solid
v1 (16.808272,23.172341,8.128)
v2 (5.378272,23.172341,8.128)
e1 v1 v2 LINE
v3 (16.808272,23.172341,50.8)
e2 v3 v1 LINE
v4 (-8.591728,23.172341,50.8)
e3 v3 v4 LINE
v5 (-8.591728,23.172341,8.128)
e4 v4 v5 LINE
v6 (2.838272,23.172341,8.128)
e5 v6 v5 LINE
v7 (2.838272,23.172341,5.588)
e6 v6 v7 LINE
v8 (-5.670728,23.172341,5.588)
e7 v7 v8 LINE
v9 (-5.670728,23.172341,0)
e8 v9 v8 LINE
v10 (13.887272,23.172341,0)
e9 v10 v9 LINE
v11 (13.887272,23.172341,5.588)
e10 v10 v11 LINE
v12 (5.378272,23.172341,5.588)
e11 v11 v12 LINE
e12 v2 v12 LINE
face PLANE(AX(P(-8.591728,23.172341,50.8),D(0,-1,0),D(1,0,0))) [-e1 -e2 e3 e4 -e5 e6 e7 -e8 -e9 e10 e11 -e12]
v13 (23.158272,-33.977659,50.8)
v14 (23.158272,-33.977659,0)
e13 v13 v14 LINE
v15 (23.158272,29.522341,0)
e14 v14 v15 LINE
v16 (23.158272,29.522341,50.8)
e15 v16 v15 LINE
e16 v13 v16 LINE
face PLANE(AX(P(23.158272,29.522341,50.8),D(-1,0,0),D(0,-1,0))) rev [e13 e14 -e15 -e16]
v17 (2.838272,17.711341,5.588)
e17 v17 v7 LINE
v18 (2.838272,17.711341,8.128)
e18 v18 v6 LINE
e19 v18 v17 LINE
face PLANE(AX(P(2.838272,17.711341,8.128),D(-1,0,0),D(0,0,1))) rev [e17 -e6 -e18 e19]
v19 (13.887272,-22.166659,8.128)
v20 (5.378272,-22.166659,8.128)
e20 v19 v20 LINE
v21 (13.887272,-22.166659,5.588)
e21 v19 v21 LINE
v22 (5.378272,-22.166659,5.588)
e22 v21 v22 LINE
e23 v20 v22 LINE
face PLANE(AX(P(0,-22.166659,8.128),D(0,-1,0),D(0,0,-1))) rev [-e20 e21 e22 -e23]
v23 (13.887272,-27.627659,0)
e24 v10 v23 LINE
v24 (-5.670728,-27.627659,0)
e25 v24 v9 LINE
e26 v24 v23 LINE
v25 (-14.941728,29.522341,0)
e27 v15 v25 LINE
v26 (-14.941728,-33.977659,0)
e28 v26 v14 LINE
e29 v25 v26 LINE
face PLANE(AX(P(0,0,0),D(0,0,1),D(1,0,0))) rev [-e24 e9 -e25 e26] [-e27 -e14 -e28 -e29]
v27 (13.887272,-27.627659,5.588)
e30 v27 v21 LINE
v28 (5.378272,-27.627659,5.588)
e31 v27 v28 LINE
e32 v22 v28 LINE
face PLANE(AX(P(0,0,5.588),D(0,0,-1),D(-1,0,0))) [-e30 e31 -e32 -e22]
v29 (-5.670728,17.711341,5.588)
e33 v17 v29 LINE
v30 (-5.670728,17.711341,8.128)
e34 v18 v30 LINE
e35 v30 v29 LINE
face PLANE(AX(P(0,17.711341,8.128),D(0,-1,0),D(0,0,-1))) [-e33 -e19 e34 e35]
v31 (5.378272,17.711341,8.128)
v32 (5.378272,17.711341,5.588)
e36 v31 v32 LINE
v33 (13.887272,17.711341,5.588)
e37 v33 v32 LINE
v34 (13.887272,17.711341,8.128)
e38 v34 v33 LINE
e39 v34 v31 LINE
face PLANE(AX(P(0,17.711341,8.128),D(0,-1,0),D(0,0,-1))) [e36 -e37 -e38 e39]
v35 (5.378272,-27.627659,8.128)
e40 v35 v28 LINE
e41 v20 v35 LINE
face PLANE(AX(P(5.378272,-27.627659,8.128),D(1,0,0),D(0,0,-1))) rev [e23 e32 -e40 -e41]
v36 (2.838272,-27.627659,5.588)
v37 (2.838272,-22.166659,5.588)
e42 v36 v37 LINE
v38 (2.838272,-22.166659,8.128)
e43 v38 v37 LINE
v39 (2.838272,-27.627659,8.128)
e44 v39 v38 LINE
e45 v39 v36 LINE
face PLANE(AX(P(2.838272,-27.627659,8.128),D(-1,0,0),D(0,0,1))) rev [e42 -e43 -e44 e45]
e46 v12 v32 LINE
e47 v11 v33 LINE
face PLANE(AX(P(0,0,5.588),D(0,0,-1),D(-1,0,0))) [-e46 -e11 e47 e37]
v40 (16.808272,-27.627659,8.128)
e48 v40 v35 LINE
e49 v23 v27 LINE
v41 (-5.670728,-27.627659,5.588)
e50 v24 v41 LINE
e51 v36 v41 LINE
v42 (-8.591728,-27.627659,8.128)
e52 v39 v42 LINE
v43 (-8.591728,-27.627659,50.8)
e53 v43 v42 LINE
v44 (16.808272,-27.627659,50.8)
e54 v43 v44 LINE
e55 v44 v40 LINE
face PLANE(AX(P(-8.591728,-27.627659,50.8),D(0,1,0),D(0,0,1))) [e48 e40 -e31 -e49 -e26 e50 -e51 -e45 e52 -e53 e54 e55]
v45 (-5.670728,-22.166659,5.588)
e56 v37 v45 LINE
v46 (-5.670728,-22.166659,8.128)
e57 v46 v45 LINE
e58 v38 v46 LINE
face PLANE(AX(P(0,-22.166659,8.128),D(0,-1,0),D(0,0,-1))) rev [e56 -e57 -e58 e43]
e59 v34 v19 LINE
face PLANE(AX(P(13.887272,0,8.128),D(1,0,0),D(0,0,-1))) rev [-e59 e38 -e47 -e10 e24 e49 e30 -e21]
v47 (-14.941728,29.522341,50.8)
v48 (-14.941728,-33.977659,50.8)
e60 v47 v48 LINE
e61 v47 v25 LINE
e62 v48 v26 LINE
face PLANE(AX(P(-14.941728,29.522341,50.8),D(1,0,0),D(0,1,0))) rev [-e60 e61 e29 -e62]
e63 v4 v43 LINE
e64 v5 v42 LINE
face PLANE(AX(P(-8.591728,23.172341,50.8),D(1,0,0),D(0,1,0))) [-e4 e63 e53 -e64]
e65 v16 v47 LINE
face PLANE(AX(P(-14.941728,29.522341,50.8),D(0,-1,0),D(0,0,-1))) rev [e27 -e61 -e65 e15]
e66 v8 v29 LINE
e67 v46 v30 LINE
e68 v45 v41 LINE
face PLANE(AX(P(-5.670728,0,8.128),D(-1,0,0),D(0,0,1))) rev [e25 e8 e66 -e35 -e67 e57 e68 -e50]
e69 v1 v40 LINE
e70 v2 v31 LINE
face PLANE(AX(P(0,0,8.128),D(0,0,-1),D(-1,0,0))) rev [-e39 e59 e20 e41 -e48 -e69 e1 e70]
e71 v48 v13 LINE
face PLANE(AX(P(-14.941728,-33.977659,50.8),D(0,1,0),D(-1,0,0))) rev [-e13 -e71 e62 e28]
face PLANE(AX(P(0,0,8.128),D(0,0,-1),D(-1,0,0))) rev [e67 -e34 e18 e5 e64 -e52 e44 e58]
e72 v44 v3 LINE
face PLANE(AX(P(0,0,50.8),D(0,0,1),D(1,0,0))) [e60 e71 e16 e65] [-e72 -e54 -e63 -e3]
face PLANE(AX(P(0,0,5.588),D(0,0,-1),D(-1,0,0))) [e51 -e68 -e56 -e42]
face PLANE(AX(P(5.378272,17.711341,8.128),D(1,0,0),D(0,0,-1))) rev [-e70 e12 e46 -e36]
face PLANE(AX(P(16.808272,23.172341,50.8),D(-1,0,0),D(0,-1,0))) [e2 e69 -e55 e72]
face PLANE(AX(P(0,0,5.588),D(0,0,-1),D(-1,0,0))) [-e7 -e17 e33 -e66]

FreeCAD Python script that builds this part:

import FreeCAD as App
import Part
import Sketcher
Q = App.Units.Quantity

doc = App.newDocument("Part")
body = doc.addObject("PartDesign::Body", "Body")

sketch1 = body.newObject("Sketcher::SketchObject", "Sketch")
sketch1.AttachmentSupport = (doc.getObject("XY_Plane"), [""])
sketch1.MapMode = "FlatFace"
sketch1.addGeometry([
    Part.LineSegment(App.Vector(-15, 30, 0), App.Vector(-15, -34, 0)),
    Part.LineSegment(App.Vector(-15, -34, 0), App.Vector(23, -34, 0)),
    Part.LineSegment(App.Vector(23, -34, 0), App.Vector(23, 30, 0)),
    Part.LineSegment(App.Vector(23, 30, 0), App.Vector(-15, 30, 0)),
    Part.LineSegment(App.Vector(17, -28, 0), App.Vector(-9, -28, 0)),
    Part.LineSegment(App.Vector(-9, -28, 0), App.Vector(-9, 23, 0)),
    Part.LineSegment(App.Vector(-9, 23, 0), App.Vector(17, 23, 0)),
    Part.LineSegment(App.Vector(17, 23, 0), App.Vector(17, -28, 0)),
], False)
sketch1.addConstraint([
    Sketcher.Constraint("Coincident", 0, 2, 1, 1),
    Sketcher.Constraint("Coincident", 1, 2, 2, 1),
    Sketcher.Constraint("Coincident", 2, 2, 3, 1),
    Sketcher.Constraint("Coincident", 3, 2, 0, 1),
    Sketcher.Constraint("Coincident", 4, 2, 5, 1),
    Sketcher.Constraint("Coincident", 5, 2, 6, 1),
    Sketcher.Constraint("Coincident", 6, 2, 7, 1),
    Sketcher.Constraint("Coincident", 7, 2, 4, 1),
    Sketcher.Constraint("Vertical", 0),
    Sketcher.Constraint("Horizontal", 1),
    Sketcher.Constraint("Vertical", 2),
    Sketcher.Constraint("Horizontal", 3),
    Sketcher.Constraint("Horizontal", 4),
    Sketcher.Constraint("Vertical", 5),
    Sketcher.Constraint("Horizontal", 6),
    Sketcher.Constraint("Vertical", 7),
    Sketcher.Constraint("DistanceX", 4, 2, 4, 1, Q("1 in")),
    Sketcher.Constraint("DistanceY", 5, 1, 5, 2, Q("2 in")),
    Sketcher.Constraint("DistanceX", 1, 1, 1, 2, Q("1.5 in")),
    Sketcher.Constraint("DistanceY", 0, 2, 0, 1, Q("2.5 in")),
    Sketcher.Constraint("DistanceX", 0, 2, 4, 2, Q("0.25 in")),
    Sketcher.Constraint("DistanceY", 0, 2, 4, 2, Q("0.25 in")),
    Sketcher.Constraint("DistanceX", 0, 2, -1, 1, Q("14.941728 mm")),
    Sketcher.Constraint("DistanceY", 0, 2, -1, 1, Q("33.977659 mm")),
])
pad1 = body.newObject("PartDesign::Pad", "Pad")
pad1.Profile = sketch1
pad1.Length = Q("2 in")

sketch2 = body.newObject("Sketcher::SketchObject", "Sketch001")
sketch2.AttachmentSupport = (doc.getObject("XY_Plane"), [""])
sketch2.MapMode = "FlatFace"
sketch2.AttachmentOffset = App.Placement(App.Vector(0, 0, 0.22 * 25.4), App.Rotation())
sketch2.addGeometry([
    Part.LineSegment(App.Vector(17, 23, 0), App.Vector(17, -28, 0)),
    Part.LineSegment(App.Vector(17, -28, 0), App.Vector(-9, -28, 0)),
    Part.LineSegment(App.Vector(-9, -28, 0), App.Vector(-9, 23, 0)),
    Part.LineSegment(App.Vector(-9, 23, 0), App.Vector(17, 23, 0)),
    Part.LineSegment(App.Vector(-6, -22, 0), App.Vector(14, -22, 0)),
    Part.LineSegment(App.Vector(14, -22, 0), App.Vector(14, 18, 0)),
    Part.LineSegment(App.Vector(14, 18, 0), App.Vector(-6, 18, 0)),
    Part.LineSegment(App.Vector(-6, 18, 0), App.Vector(-6, -22, 0)),
], False)
sketch2.addConstraint([
    Sketcher.Constraint("Coincident", 0, 2, 1, 1),
    Sketcher.Constraint("Coincident", 1, 2, 2, 1),
    Sketcher.Constraint("Coincident", 2, 2, 3, 1),
    Sketcher.Constraint("Coincident", 3, 2, 0, 1),
    Sketcher.Constraint("Coincident", 4, 2, 5, 1),
    Sketcher.Constraint("Coincident", 5, 2, 6, 1),
    Sketcher.Constraint("Coincident", 6, 2, 7, 1),
    Sketcher.Constraint("Coincident", 7, 2, 4, 1),
    Sketcher.Constraint("Vertical", 0),
    Sketcher.Constraint("Horizontal", 1),
    Sketcher.Constraint("Vertical", 2),
    Sketcher.Constraint("Horizontal", 3),
    Sketcher.Constraint("Horizontal", 4),
    Sketcher.Constraint("Vertical", 5),
    Sketcher.Constraint("Horizontal", 6),
    Sketcher.Constraint("Vertical", 7),
    Sketcher.Constraint("DistanceX", 1, 2, 1, 1, Q("1 in")),
    Sketcher.Constraint("DistanceY", 0, 2, 0, 1, Q("2 in")),
    Sketcher.Constraint("DistanceX", 4, 1, 4, 2, Q("0.77 in")),
    Sketcher.Constraint("DistanceY", 5, 1, 5, 2, Q("1.57 in")),
    Sketcher.Constraint("DistanceX", 4, 2, 0, 2, Q("0.115 in")),
    Sketcher.Constraint("DistanceY", 0, 2, 4, 2, Q("0.215 in")),
    Sketcher.Constraint("DistanceX", -1, 1, 0, 2, Q("16.808272 mm")),
    Sketcher.Constraint("DistanceY", 0, 2, -1, 1, Q("27.627659 mm")),
])
pad2 = body.newObject("PartDesign::Pad", "Pad001")
pad2.Profile = sketch2
pad2.Length = Q("0.1 in")

sketch3 = body.newObject("Sketcher::SketchObject", "Sketch002")
sketch3.AttachmentSupport = (doc.getObject("XY_Plane"), [""])
sketch3.MapMode = "FlatFace"
sketch3.AttachmentOffset = App.Placement(App.Vector(0, 0, 0.22 * 25.4), App.Rotation())
sketch3.addGeometry([
    Part.LineSegment(App.Vector(16.8, 23.2, 0), App.Vector(16.8, -27.6, 0)),
    Part.LineSegment(App.Vector(16.8, -27.6, 0), App.Vector(13.9, -27.6, 0)),
    Part.LineSegment(App.Vector(13.9, -27.6, 0), App.Vector(13.9, 23.2, 0)),
    Part.LineSegment(App.Vector(13.9, 23.2, 0), App.Vector(16.8, 23.2, 0)),
    Part.LineSegment(App.Vector(-5.7, 23.2, 0), App.Vector(-5.7, -27.6, 0)),
    Part.LineSegment(App.Vector(-5.7, -27.6, 0), App.Vector(-8.6, -27.6, 0)),
    Part.LineSegment(App.Vector(-8.6, -27.6, 0), App.Vector(-8.6, 23.2, 0)),
    Part.LineSegment(App.Vector(-8.6, 23.2, 0), App.Vector(-5.7, 23.2, 0)),
], False)
sketch3.addConstraint([
    Sketcher.Constraint("Coincident", 0, 2, 1, 1),
    Sketcher.Constraint("Coincident", 1, 2, 2, 1),
    Sketcher.Constraint("Coincident", 2, 2, 3, 1),
    Sketcher.Constraint("Coincident", 3, 2, 0, 1),
    Sketcher.Constraint("Coincident", 4, 2, 5, 1),
    Sketcher.Constraint("Coincident", 5, 2, 6, 1),
    Sketcher.Constraint("Coincident", 6, 2, 7, 1),
    Sketcher.Constraint("Coincident", 7, 2, 4, 1),
    Sketcher.Constraint("Vertical", 0),
    Sketcher.Constraint("Horizontal", 1),
    Sketcher.Constraint("Vertical", 2),
    Sketcher.Constraint("Horizontal", 3),
    Sketcher.Constraint("Vertical", 4),
    Sketcher.Constraint("Horizontal", 5),
    Sketcher.Constraint("Vertical", 6),
    Sketcher.Constraint("Horizontal", 7),
    Sketcher.Constraint("Horizontal", 1, 2, 4, 2),
    Sketcher.Constraint("Horizontal", 3, 2, 6, 2),
    Sketcher.Constraint("Equal", 3, 5),
    Sketcher.Constraint("DistanceY", 0, 2, 0, 1, Q("2 in")),
    Sketcher.Constraint("DistanceX", 5, 2, 0, 2, Q("1 in")),
    Sketcher.Constraint("DistanceX", 1, 2, 1, 1, Q("0.115 in")),
    Sketcher.Constraint("DistanceX", -1, 1, 0, 2, Q("16.808272 mm")),
    Sketcher.Constraint("DistanceY", 0, 2, -1, 1, Q("27.627659 mm")),
])
pad3 = body.newObject("PartDesign::Pad", "Pad002")
pad3.Profile = sketch3
pad3.Length = Q("0.22 in")
pad3.Reversed = True

sketch4 = body.newObject("Sketcher::SketchObject", "Sketch003")
sketch4.AttachmentSupport = (doc.getObject("XY_Plane"), [""])
sketch4.MapMode = "FlatFace"
sketch4.AttachmentOffset = App.Placement(App.Vector(0, 0, 0.22 * 25.4), App.Rotation())
sketch4.addGeometry([
    Part.LineSegment(App.Vector(5.4, 23.2, 0), App.Vector(5.4, 17.7, 0)),
    Part.LineSegment(App.Vector(5.4, 17.7, 0), App.Vector(2.8, 17.7, 0)),
    Part.LineSegment(App.Vector(2.8, 17.7, 0), App.Vector(2.8, 23.2, 0)),
    Part.LineSegment(App.Vector(2.8, 23.2, 0), App.Vector(5.4, 23.2, 0)),
    Part.LineSegment(App.Vector(5.4, -22.2, 0), App.Vector(5.4, -27.6, 0)),
    Part.LineSegment(App.Vector(5.4, -27.6, 0), App.Vector(2.8, -27.6, 0)),
    Part.LineSegment(App.Vector(2.8, -27.6, 0), App.Vector(2.8, -22.2, 0)),
    Part.LineSegment(App.Vector(2.8, -22.2, 0), App.Vector(5.4, -22.2, 0)),
], False)
sketch4.addConstraint([
    Sketcher.Constraint("Coincident", 0, 2, 1, 1),
    Sketcher.Constraint("Coincident", 1, 2, 2, 1),
    Sketcher.Constraint("Coincident", 2, 2, 3, 1),
    Sketcher.Constraint("Coincident", 3, 2, 0, 1),
    Sketcher.Constraint("Coincident", 4, 2, 5, 1),
    Sketcher.Constraint("Coincident", 5, 2, 6, 1),
    Sketcher.Constraint("Coincident", 6, 2, 7, 1),
    Sketcher.Constraint("Coincident", 7, 2, 4, 1),
    Sketcher.Constraint("Vertical", 0),
    Sketcher.Constraint("Horizontal", 1),
    Sketcher.Constraint("Vertical", 2),
    Sketcher.Constraint("Horizontal", 3),
    Sketcher.Constraint("Vertical", 4),
    Sketcher.Constraint("Horizontal", 5),
    Sketcher.Constraint("Vertical", 6),
    Sketcher.Constraint("Horizontal", 7),
    Sketcher.Constraint("Vertical", 3, 2, 4, 2),
    Sketcher.Constraint("Vertical", 2, 2, 5, 2),
    Sketcher.Constraint("Equal", 2, 4),
    Sketcher.Constraint("DistanceX", 1, 2, 1, 1, Q("0.1 in")),
    Sketcher.Constraint("DistanceY", 4, 2, 3, 2, Q("2 in")),
    Sketcher.Constraint("DistanceY", 0, 2, 0, 1, Q("0.215 in")),
    Sketcher.Constraint("DistanceX", -1, 1, 0, 2, Q("5.378272 mm")),
    Sketcher.Constraint("DistanceY", -1, 1, 0, 2, Q("17.711341 mm")),
])
pocket1 = body.newObject("PartDesign::Pocket", "Pocket")
pocket1.Profile = sketch4
pocket1.Length = Q("0.1 in")
pocket1.Reversed = True

doc.recompute()
